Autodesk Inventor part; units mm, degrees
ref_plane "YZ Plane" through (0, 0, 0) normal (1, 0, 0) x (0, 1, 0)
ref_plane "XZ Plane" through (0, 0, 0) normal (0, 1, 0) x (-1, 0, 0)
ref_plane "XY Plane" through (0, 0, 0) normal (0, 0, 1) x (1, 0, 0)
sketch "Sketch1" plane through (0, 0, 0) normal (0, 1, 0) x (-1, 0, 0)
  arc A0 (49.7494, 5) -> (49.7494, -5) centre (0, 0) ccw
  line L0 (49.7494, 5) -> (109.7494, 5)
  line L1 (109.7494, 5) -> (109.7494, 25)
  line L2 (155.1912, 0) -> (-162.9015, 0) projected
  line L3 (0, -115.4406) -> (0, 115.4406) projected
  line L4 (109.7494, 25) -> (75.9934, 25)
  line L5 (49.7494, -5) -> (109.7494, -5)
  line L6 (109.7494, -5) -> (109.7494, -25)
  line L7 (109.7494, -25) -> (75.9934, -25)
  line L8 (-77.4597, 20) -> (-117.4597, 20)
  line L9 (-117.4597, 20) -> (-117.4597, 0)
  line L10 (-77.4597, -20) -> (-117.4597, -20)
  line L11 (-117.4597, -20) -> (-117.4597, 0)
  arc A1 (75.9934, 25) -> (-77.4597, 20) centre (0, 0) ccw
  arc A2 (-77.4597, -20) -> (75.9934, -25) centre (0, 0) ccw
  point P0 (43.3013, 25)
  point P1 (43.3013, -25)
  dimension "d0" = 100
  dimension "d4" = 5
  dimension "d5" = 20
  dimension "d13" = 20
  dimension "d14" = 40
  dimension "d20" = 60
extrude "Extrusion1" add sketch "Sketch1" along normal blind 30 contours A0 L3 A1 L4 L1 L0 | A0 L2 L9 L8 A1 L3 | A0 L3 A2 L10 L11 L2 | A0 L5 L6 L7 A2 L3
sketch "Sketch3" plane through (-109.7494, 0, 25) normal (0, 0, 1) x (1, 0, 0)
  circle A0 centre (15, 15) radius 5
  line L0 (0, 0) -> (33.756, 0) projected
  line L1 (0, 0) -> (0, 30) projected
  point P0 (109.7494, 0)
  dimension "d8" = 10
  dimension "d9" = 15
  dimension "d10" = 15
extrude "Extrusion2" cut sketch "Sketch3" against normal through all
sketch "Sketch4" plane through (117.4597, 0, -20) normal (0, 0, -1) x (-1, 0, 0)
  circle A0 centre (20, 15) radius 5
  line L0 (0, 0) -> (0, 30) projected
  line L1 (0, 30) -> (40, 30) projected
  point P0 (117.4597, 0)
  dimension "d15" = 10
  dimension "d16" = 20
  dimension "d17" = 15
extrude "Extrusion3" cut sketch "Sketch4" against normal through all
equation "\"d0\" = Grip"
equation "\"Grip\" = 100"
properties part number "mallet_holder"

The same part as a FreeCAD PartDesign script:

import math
import FreeCAD as App
import Part
import Sketcher
from FreeCAD import Vector

doc = App.newDocument("Part")
body = doc.addObject("PartDesign::Body", "Body")

sketch1 = body.newObject("Sketcher::SketchObject", "Sketch")
sketch1.AttachmentSupport = (doc.getObject("XZ_Plane"), [""])
sketch1.MapMode = "FlatFace"
sketch1.addGeometry(Part.LineSegment(Vector(-49.7494, 5, 0), Vector(-109.7494, 5, 0)), False)
sketch1.addGeometry(Part.LineSegment(Vector(-109.7494, 5, 0), Vector(-109.7494, 25, 0)), False)
sketch1.addGeometry(Part.LineSegment(Vector(-109.7494, 25, 0), Vector(-75.9934, 25, 0)), False)
sketch1.addGeometry(Part.ArcOfCircle(Part.Circle(Vector(0, 0, 0), Vector(0, 0, 1), 80.000032), math.radians(14.477506), math.radians(161.790038)), False)
sketch1.addGeometry(Part.LineSegment(Vector(77.4597, 20, 0), Vector(117.4597, 20, 0)), False)
sketch1.addGeometry(Part.LineSegment(Vector(117.4597, 20, 0), Vector(117.4597, -20, 0)), False)
sketch1.addGeometry(Part.LineSegment(Vector(117.4597, -20, 0), Vector(77.4597, -20, 0)), False)
sketch1.addGeometry(Part.ArcOfCircle(Part.Circle(Vector(0, 0, 0), Vector(0, 0, 1), 79.99998), math.radians(-161.790038), math.radians(-14.477506)), False)
sketch1.addGeometry(Part.LineSegment(Vector(-75.9934, -25, 0), Vector(-109.7494, -25, 0)), False)
sketch1.addGeometry(Part.LineSegment(Vector(-109.7494, -25, 0), Vector(-109.7494, -5, 0)), False)
sketch1.addGeometry(Part.LineSegment(Vector(-109.7494, -5, 0), Vector(-49.7494, -5, 0)), False)
sketch1.addGeometry(Part.ArcOfCircle(Part.Circle(Vector(0, 0, 0), Vector(0, 0, 1), 50.000028), math.radians(-174.260833), math.radians(174.260833)), False)
sketch1.addConstraint(Sketcher.Constraint("Coincident", 0, 2, 1, 1))
sketch1.addConstraint(Sketcher.Constraint("Coincident", 1, 2, 2, 1))
sketch1.addConstraint(Sketcher.Constraint("Coincident", 2, 2, 3, 2))
sketch1.addConstraint(Sketcher.Constraint("Coincident", 3, 1, 4, 1))
sketch1.addConstraint(Sketcher.Constraint("Coincident", 4, 2, 5, 1))
sketch1.addConstraint(Sketcher.Constraint("Coincident", 5, 2, 6, 1))
sketch1.addConstraint(Sketcher.Constraint("Coincident", 6, 2, 7, 2))
sketch1.addConstraint(Sketcher.Constraint("Coincident", 7, 1, 8, 1))
sketch1.addConstraint(Sketcher.Constraint("Coincident", 8, 2, 9, 1))
sketch1.addConstraint(Sketcher.Constraint("Coincident", 9, 2, 10, 1))
sketch1.addConstraint(Sketcher.Constraint("Coincident", 10, 2, 11, 1))
sketch1.addConstraint(Sketcher.Constraint("Coincident", 11, 2, 0, 1))
sketch1.addConstraint(Sketcher.Constraint("Horizontal", 0))
sketch1.addConstraint(Sketcher.Constraint("Vertical", 1))
sketch1.addConstraint(Sketcher.Constraint("Horizontal", 2))
sketch1.addConstraint(Sketcher.Constraint("Horizontal", 4))
sketch1.addConstraint(Sketcher.Constraint("Vertical", 5))
sketch1.addConstraint(Sketcher.Constraint("Horizontal", 6))
sketch1.addConstraint(Sketcher.Constraint("Horizontal", 8))
sketch1.addConstraint(Sketcher.Constraint("Vertical", 9))
sketch1.addConstraint(Sketcher.Constraint("Horizontal", 10))
sketch1.addConstraint(Sketcher.Constraint("Coincident", 3, 3, -1, 1))
sketch1.addConstraint(Sketcher.Constraint("Coincident", 7, 3, -1, 1))
sketch1.addConstraint(Sketcher.Constraint("Coincident", 11, 3, -1, 1))
sketch1.addConstraint(Sketcher.Constraint("Equal", 3, 7))
sketch1.addConstraint(Sketcher.Constraint("Symmetric", 1, 2, 8, 2, -1))
sketch1.addConstraint(Sketcher.Constraint("Vertical", 3, 1, 6, 2))
sketch1.addConstraint(Sketcher.Constraint("Vertical", 10, 2, 11, 2))
sketch1.addConstraint(Sketcher.Constraint("Equal", 6, 5))
sketch1.addConstraint(Sketcher.Constraint("Radius", 11, 50.0))
sketch1.addConstraint(Sketcher.Constraint("DistanceX", 0, 2, 0, 1, 60.0))
sketch1.addConstraint(Sketcher.Constraint("DistanceX", 4, 1, 4, 2, 40.0))
sketch1.addConstraint(Sketcher.Constraint("DistanceY", 1, 1, 1, 2, 20.0))
sketch1.addConstraint(Sketcher.Constraint("DistanceY", -1, 1, 0, 2, 5.0))
sketch1.addConstraint(Sketcher.Constraint("Radius", 3, 80.0))
pad1 = body.newObject("PartDesign::Pad", "Pad")
pad1.Profile = sketch1
pad1.Length = 30
pad1.Reversed = True

sketch2 = body.newObject("Sketcher::SketchObject", "Sketch001")
sketch2.AttachmentSupport = (doc.getObject("XY_Plane"), [""])
sketch2.MapMode = "FlatFace"
sketch2.AttachmentOffset = App.Placement(Vector(0, 0, 25), App.Rotation())
sketch2.addGeometry(Part.Circle(Vector(-94.7494, 15, 0), Vector(0, 0, 1), 5), False)
sketch2.addConstraint(Sketcher.Constraint("Diameter", 0, 10.0))
sketch2.addConstraint(Sketcher.Constraint("DistanceY", -1, 1, 0, 3, 15.0))
sketch2.addConstraint(Sketcher.Constraint("DistanceX", 0, 3, -1, 1, 94.7494))
pocket1 = body.newObject("PartDesign::Pocket", "Pocket")
pocket1.Profile = sketch2
pocket1.Type = "ThroughAll"

sketch3 = body.newObject("Sketcher::SketchObject", "Sketch002")
sketch3.AttachmentSupport = (doc.getObject("XY_Plane"), [""])
sketch3.MapMode = "FlatFace"
sketch3.AttachmentOffset = App.Placement(Vector(0, 0, -20), App.Rotation())
sketch3.addGeometry(Part.Circle(Vector(97.4597, 15, 0), Vector(0, 0, 1), 5), False)
sketch3.addConstraint(Sketcher.Constraint("Diameter", 0, 10.0))
sketch3.addConstraint(Sketcher.Constraint("DistanceY", -1, 1, 0, 3, 15.0))
sketch3.addConstraint(Sketcher.Constraint("DistanceX", -1, 1, 0, 3, 97.4597))
pocket2 = body.newObject("PartDesign::Pocket", "Pocket001")
pocket2.Profile = sketch3
pocket2.Type = "ThroughAll"
pocket2.Reversed = True

doc.recompute()
